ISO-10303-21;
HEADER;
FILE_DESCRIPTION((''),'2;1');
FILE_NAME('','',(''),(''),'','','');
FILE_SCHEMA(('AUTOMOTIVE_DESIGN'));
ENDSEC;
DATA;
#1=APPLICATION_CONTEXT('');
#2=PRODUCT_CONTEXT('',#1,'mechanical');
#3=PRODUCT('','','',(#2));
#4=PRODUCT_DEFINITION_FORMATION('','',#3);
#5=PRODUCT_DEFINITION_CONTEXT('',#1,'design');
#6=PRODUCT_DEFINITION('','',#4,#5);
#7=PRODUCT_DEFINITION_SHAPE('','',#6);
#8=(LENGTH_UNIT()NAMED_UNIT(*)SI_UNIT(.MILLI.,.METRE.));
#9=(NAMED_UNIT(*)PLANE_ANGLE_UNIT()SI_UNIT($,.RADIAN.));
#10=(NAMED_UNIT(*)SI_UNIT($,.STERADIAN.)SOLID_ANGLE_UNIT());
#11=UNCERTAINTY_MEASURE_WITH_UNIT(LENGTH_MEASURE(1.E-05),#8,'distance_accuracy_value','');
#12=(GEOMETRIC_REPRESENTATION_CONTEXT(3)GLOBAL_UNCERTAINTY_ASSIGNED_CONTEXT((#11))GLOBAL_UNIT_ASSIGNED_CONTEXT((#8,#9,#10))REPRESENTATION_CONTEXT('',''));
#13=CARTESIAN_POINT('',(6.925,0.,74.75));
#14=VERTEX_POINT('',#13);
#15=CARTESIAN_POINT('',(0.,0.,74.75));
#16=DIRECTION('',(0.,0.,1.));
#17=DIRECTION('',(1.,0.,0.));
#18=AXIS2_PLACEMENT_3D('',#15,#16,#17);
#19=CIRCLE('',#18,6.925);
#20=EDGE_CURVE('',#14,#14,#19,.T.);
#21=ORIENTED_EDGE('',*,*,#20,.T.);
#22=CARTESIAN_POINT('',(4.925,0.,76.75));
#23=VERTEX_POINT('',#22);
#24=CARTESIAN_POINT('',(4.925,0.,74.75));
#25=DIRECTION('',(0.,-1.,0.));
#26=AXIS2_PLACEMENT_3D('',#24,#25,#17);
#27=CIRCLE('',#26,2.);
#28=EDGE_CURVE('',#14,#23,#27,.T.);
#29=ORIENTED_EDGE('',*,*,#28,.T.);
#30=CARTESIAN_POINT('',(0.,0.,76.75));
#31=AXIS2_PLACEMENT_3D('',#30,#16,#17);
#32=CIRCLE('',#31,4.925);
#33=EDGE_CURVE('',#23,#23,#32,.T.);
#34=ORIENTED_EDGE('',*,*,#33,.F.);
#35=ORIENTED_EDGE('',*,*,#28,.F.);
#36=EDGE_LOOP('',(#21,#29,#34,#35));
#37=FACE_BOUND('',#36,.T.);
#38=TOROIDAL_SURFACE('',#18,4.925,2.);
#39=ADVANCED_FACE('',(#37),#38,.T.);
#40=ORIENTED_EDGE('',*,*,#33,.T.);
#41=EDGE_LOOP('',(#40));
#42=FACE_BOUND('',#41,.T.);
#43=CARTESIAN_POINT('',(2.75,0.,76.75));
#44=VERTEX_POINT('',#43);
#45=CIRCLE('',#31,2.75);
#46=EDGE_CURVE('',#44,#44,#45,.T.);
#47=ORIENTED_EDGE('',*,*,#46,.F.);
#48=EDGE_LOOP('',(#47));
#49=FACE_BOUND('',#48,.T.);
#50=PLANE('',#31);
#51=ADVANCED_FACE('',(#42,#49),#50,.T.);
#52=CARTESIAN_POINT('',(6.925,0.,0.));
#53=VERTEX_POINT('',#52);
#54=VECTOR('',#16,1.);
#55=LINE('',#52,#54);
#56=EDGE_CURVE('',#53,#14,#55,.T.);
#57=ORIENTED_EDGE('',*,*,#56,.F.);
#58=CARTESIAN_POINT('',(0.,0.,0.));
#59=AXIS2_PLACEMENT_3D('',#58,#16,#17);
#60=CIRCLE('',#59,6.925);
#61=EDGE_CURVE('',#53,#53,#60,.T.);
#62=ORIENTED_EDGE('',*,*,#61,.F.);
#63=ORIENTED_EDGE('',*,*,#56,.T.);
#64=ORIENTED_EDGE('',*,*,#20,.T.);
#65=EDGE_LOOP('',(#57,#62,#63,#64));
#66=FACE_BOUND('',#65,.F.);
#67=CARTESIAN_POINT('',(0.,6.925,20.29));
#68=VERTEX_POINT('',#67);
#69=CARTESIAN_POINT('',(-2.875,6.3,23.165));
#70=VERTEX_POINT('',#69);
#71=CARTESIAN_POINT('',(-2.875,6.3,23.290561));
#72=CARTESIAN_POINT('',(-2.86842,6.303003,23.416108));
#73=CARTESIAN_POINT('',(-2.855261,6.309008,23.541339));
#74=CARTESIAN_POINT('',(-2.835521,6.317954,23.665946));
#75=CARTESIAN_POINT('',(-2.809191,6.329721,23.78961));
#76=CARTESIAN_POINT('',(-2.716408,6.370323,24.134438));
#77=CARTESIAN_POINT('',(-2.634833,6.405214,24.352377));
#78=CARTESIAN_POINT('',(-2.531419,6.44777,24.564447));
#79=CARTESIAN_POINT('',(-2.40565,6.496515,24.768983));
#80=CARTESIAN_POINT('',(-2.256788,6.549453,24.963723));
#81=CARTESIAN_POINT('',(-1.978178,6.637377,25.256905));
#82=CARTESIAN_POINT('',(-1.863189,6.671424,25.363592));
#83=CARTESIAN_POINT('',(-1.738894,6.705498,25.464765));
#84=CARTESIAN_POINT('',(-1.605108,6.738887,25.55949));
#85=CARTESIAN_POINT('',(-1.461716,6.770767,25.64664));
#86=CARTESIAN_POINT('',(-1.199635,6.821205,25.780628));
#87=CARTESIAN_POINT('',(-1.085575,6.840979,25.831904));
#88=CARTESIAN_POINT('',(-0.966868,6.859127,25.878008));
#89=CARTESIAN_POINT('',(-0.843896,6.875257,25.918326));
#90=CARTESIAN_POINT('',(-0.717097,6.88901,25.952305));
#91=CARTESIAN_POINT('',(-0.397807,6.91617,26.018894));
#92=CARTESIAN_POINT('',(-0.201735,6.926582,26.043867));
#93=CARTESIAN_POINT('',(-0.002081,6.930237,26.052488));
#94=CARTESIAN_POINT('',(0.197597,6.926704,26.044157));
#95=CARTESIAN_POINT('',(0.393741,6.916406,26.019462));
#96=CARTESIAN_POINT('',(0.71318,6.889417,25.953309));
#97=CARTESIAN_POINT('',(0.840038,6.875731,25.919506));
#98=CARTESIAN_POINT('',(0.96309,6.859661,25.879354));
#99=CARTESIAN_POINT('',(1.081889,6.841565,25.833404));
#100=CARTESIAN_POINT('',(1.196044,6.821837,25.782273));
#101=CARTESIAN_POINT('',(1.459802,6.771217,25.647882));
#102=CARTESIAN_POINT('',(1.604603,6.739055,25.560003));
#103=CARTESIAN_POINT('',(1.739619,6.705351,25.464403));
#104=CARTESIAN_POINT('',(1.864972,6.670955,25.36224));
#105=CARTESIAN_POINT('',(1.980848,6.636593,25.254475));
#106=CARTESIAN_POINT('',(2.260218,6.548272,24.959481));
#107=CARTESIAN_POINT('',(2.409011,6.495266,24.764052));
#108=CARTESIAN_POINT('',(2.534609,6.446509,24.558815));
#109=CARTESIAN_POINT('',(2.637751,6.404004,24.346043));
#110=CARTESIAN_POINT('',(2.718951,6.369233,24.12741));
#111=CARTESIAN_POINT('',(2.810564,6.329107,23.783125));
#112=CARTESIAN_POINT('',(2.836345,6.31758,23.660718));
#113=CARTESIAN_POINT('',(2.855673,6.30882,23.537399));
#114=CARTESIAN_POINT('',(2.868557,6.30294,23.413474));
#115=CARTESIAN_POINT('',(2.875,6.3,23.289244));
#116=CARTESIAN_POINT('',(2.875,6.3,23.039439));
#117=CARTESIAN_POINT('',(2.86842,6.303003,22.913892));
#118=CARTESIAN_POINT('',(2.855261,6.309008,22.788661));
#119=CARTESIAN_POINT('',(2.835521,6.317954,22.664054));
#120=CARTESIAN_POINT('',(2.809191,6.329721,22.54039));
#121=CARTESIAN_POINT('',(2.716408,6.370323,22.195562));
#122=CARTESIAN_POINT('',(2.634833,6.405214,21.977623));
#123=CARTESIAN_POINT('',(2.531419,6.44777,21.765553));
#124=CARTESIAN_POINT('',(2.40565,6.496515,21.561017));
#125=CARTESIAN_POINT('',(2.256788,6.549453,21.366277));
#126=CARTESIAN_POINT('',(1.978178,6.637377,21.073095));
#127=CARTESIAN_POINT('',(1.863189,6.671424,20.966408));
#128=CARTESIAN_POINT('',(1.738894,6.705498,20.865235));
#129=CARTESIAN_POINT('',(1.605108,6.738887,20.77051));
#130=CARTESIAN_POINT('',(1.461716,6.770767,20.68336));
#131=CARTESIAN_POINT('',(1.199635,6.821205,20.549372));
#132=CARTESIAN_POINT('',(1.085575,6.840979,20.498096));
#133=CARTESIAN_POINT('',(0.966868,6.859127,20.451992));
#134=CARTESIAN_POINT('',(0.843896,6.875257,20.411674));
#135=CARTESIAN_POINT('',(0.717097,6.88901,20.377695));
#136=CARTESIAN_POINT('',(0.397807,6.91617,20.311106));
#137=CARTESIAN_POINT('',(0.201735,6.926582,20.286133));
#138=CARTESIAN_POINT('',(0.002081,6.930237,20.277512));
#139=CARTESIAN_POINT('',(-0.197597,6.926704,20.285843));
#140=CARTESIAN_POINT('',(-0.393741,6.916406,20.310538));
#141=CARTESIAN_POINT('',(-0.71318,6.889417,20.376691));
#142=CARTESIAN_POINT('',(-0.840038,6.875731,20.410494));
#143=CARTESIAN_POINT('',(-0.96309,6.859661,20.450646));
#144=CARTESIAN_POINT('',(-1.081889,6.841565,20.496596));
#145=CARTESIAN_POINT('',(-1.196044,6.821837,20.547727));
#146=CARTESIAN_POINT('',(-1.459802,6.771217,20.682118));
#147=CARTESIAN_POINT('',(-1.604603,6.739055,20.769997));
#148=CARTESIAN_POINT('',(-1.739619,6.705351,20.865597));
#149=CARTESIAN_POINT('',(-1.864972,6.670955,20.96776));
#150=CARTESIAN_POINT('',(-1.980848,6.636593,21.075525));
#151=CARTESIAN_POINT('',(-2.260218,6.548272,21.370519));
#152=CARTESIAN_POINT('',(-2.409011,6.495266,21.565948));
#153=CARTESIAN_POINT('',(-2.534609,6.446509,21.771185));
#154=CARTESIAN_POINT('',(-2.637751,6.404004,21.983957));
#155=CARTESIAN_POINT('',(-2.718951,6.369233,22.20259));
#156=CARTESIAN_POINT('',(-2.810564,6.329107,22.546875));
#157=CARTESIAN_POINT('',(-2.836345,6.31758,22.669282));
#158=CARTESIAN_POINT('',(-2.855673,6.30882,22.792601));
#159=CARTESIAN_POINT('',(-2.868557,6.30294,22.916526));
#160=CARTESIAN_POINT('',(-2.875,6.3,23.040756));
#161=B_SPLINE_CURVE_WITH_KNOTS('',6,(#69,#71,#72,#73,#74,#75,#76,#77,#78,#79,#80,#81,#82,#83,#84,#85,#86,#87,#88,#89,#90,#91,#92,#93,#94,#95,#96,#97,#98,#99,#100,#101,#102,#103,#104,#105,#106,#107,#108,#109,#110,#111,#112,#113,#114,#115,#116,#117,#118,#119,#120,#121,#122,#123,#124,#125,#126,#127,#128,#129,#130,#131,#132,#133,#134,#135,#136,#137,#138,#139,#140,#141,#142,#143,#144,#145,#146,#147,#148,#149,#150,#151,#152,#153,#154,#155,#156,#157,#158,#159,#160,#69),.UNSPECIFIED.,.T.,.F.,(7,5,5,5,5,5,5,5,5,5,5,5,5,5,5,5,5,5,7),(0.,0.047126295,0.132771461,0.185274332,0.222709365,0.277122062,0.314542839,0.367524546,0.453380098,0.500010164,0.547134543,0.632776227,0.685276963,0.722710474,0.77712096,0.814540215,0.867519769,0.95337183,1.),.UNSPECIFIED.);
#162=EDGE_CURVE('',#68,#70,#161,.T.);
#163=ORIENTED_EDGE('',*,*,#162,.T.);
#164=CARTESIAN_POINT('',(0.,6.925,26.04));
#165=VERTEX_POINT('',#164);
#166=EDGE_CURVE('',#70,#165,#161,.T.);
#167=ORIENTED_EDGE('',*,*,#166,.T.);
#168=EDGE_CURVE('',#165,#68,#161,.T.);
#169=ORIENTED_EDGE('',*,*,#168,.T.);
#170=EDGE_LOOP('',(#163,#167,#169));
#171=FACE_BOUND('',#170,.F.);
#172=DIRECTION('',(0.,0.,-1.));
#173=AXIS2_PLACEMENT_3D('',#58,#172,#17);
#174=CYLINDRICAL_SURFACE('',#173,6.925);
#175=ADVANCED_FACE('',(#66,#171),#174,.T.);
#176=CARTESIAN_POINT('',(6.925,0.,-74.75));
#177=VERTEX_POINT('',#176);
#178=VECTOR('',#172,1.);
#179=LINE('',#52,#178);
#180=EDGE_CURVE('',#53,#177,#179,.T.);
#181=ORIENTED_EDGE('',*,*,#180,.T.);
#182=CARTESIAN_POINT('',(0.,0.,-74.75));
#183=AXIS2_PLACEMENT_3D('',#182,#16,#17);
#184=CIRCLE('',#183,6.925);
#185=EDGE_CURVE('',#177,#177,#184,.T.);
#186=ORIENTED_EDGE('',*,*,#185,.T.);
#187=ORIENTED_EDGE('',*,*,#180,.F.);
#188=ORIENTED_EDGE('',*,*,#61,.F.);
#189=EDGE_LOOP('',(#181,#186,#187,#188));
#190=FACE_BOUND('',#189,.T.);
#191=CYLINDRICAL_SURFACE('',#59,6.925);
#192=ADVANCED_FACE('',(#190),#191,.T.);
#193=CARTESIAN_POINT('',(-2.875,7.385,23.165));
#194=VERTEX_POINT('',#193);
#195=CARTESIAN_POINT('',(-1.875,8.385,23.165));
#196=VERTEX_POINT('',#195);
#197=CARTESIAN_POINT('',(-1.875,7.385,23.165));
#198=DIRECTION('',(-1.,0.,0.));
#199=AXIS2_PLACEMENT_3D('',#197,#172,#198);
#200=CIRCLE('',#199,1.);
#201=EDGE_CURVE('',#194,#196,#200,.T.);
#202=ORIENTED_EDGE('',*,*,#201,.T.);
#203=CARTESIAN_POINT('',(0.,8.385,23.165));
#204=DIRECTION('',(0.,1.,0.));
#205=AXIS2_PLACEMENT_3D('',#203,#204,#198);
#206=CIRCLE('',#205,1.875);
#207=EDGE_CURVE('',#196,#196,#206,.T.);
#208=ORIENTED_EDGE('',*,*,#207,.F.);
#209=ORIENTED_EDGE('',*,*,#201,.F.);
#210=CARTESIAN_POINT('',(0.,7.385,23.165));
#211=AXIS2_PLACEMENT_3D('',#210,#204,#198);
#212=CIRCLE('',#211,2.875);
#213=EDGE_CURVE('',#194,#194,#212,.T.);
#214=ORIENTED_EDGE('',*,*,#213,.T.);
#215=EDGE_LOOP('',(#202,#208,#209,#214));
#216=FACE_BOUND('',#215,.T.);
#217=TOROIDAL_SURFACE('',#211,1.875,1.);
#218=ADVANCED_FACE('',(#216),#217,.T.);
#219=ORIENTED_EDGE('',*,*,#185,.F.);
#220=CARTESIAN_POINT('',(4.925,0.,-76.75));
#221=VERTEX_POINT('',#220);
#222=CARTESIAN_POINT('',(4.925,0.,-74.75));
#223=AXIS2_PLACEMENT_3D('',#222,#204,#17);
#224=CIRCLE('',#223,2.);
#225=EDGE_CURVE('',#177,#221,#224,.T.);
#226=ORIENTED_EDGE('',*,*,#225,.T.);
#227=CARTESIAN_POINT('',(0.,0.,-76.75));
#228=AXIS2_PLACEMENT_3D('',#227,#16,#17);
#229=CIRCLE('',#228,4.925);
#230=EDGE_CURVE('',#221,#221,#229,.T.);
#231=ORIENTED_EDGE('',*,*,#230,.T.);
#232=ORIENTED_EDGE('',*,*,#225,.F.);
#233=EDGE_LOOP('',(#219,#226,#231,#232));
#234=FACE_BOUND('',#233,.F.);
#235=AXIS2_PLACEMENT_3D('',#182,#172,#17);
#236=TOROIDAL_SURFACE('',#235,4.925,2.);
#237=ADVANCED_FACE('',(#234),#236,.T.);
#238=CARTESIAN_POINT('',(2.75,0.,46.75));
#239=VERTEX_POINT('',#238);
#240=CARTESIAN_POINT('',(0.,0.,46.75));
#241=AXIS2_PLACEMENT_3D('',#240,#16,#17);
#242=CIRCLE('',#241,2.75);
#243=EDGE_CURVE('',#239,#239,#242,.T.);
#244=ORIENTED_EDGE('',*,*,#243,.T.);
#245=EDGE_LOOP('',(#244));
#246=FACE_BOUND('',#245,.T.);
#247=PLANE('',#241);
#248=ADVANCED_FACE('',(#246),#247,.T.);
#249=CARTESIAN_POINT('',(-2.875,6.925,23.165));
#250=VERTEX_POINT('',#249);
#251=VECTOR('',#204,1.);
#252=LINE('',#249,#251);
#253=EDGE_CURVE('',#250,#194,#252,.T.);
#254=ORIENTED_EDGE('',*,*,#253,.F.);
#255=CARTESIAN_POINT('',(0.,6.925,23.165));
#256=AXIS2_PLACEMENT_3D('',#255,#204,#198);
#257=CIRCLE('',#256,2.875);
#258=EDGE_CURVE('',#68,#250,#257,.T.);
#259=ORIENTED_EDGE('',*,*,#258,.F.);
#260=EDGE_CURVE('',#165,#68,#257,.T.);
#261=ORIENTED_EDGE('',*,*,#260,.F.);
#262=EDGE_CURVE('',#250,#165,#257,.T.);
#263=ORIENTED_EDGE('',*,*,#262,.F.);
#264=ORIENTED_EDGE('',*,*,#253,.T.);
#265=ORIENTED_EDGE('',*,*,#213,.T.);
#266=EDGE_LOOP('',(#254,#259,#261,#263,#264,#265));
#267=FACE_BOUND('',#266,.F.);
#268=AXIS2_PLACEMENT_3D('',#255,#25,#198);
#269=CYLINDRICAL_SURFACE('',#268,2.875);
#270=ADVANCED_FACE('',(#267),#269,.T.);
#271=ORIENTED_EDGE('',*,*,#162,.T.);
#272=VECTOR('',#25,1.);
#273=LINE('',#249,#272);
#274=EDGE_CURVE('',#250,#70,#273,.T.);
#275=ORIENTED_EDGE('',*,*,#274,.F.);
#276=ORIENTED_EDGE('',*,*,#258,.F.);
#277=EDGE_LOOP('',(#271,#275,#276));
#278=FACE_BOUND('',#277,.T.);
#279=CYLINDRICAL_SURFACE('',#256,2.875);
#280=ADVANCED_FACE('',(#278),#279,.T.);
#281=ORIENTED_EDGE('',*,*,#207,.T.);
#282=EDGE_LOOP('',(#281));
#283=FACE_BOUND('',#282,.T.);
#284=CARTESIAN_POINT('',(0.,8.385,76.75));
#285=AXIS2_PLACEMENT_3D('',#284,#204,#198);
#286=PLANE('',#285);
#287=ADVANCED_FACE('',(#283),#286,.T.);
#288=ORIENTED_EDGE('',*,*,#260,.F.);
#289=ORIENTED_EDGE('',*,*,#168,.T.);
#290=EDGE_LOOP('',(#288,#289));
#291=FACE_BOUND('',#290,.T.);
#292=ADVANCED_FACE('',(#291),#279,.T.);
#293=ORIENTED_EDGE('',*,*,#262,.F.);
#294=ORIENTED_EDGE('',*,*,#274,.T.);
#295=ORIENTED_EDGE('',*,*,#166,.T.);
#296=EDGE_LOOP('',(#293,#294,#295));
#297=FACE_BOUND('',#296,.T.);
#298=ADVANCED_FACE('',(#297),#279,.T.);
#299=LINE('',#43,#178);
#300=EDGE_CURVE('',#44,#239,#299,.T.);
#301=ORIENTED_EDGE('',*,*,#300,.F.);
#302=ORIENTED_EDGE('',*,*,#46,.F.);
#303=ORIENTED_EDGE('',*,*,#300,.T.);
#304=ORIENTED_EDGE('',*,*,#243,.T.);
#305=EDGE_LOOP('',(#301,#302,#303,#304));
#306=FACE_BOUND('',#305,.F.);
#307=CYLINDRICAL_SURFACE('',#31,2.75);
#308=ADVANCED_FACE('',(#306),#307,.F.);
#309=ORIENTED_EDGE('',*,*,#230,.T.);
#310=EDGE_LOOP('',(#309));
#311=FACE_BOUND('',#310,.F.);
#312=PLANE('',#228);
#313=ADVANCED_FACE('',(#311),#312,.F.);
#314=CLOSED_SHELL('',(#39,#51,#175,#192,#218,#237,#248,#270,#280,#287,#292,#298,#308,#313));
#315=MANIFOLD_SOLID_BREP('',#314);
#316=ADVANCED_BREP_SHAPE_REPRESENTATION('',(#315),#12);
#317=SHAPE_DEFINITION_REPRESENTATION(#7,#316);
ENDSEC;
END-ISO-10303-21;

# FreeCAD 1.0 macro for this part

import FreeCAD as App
import Part
import Sketcher
from FreeCAD import Vector
Q = App.Units.Quantity


def edges_at(feature, points):
    """Names of the edges that pass closest to the given points."""
    edges = feature.Shape.Edges
    near = lambda p: min(range(len(edges)), key=lambda i: edges[i].distToShape(Part.Vertex(*p))[0])
    return sorted({f"Edge{near(p) + 1}" for p in points})

doc = App.newDocument("Part")
params = doc.addObject("Spreadsheet::Sheet", "Params")
for row, (alias, value) in enumerate([
    ("sketch1_diameter", "13.85 mm"),
    ("pad1_length", "153.5 mm"),
    ("sketch2_diameter", "5.75 mm"),
    ("pad2_length", "2.92 mm"),
    ("fillet_radius", "1 mm"),
    ("sketch3_diameter", "5.5 mm"),
    ("pocket1_length", "30 mm"),
    ("fillet2_radius", "2 mm"),
], start=1):
    params.set(f"A{row}", alias)
    params.set(f"B{row}", "=" + value)
    params.setAlias(f"B{row}", alias)

body = doc.addObject("PartDesign::Body", "Body")

# Sketch on XY plane
sketch1 = body.newObject("Sketcher::SketchObject", "Sketch")
sketch1.AttachmentSupport = (doc.getObject("XY_Plane"), [""])
sketch1.MapMode = "FlatFace"
sketch1.addGeometry(Part.Circle(Vector(0, 0, 0), Vector(0, 0, 1), 7), False)
sketch1.addConstraint(Sketcher.Constraint("Coincident", 0, 3, -1, 1))
sketch1.addConstraint(Sketcher.Constraint("Diameter", 0, Q("13.85 mm")))
sketch1.setExpression("Constraints[1]", "Params.sketch1_diameter")
pad1 = body.newObject("PartDesign::Pad", "Pad")
pad1.Profile = sketch1
pad1.setExpression("Length", "Params.pad1_length")
pad1.Midplane = True

# Sketch on XZ plane
sketch2 = body.newObject("Sketcher::SketchObject", "Sketch001")
sketch2.AttachmentSupport = (doc.getObject("XZ_Plane"), [""])
sketch2.MapMode = "FlatFace"
sketch2.AttachmentOffset = App.Placement(Vector(0, 0, -6.925), App.Rotation())
sketch2.addGeometry(Part.Circle(Vector(0, 23.2, 0), Vector(0, 0, 1), 2.9), False)
sketch2.addConstraint(Sketcher.Constraint("PointOnObject", 0, 3, -2))
sketch2.addConstraint(Sketcher.Constraint("Diameter", 0, Q("5.75 mm")))
sketch2.addConstraint(Sketcher.Constraint("DistanceY", -1, 1, 0, 3, Q("23.165 mm")))
sketch2.setExpression("Constraints[1]", "Params.sketch2_diameter")
pad2 = body.newObject("PartDesign::Pad", "Pad001")
pad2.Profile = sketch2
pad2.setExpression("Length", "Params.pad2_length")
pad2.Midplane = True
doc.recompute()

fillet = body.newObject("PartDesign::Fillet", "Fillet")
fillet.Base = (pad2, edges_at(pad2, [(2.875, 8.385, 23.165)]))
fillet.setExpression("Radius", "Params.fillet_radius")

# Sketch on XY plane
sketch3 = body.newObject("Sketcher::SketchObject", "Sketch002")
sketch3.AttachmentSupport = (doc.getObject("XY_Plane"), [""])
sketch3.MapMode = "FlatFace"
sketch3.AttachmentOffset = App.Placement(Vector(0, 0, 76.75), App.Rotation())
sketch3.addGeometry(Part.Circle(Vector(0, 0, 0), Vector(0, 0, 1), 2.8), False)
sketch3.addConstraint(Sketcher.Constraint("Coincident", 0, 3, -1, 1))
sketch3.addConstraint(Sketcher.Constraint("Diameter", 0, Q("5.5 mm")))
sketch3.setExpression("Constraints[1]", "Params.sketch3_diameter")
pocket1 = body.newObject("PartDesign::Pocket", "Pocket")
pocket1.Profile = sketch3
pocket1.setExpression("Length", "Params.pocket1_length")
doc.recompute()

fillet2 = body.newObject("PartDesign::Fillet", "Fillet001")
fillet2.Base = (pocket1, edges_at(pocket1, [(-6.925, 0, 76.75), (-6.925, 0, -76.75)]))
fillet2.setExpression("Radius", "Params.fillet2_radius")

doc.recompute()
